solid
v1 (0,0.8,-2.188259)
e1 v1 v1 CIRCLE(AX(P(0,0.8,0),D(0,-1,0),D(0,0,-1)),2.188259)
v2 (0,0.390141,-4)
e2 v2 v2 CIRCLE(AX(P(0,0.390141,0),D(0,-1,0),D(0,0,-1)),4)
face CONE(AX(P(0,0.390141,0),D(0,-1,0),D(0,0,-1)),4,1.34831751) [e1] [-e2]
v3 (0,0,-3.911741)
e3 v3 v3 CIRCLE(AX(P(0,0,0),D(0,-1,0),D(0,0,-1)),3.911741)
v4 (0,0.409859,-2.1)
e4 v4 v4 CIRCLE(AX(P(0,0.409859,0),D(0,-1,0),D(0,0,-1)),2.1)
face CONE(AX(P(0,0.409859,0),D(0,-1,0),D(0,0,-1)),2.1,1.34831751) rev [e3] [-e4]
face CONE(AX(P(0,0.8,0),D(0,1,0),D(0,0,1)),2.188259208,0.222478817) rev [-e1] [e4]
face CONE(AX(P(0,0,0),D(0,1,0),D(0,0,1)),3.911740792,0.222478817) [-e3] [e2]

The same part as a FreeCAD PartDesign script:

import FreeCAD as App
import Part
import Sketcher

V = App.Vector
Q = App.Units.Quantity

doc = App.newDocument("Part")
params = doc.addObject("Spreadsheet::Sheet", "Params")
for row, (alias, value) in enumerate([
    ("sketch1_length", "0.4 mm"),
    ("revolution_angle", "360 deg"),
], start=1):
    params.set(f"A{row}", alias)
    params.set(f"B{row}", "=" + value)
    params.setAlias(f"B{row}", alias)

body = doc.addObject("PartDesign::Body", "Body")

sketch1 = body.newObject("Sketcher::SketchObject", "Sketch")
sketch1.AttachmentSupport = (doc.getObject("XY_Plane"), [""])
sketch1.MapMode = "FlatFace"
sketch1.addGeometry(Part.LineSegment(V(2.1, 0.41, 0), V(3.91, 0, 0)), False)
sketch1.addGeometry(Part.LineSegment(V(3.91, 0, 0), V(4, 0.39, 0)), False)
sketch1.addGeometry(Part.LineSegment(V(4, 0.39, 0), V(2.19, 0.8, 0)), False)
sketch1.addGeometry(Part.LineSegment(V(2.19, 0.8, 0), V(2.1, 0.41, 0)), False)
sketch1.addConstraint(Sketcher.Constraint("Coincident", 0, 2, 1, 1))
sketch1.addConstraint(Sketcher.Constraint("Coincident", 1, 2, 2, 1))
sketch1.addConstraint(Sketcher.Constraint("Coincident", 2, 2, 3, 1))
sketch1.addConstraint(Sketcher.Constraint("Coincident", 3, 2, 0, 1))
sketch1.addConstraint(Sketcher.Constraint("PointOnObject", 0, 2, -1))
sketch1.addConstraint(Sketcher.Constraint("Perpendicular", 0, 1))
sketch1.addConstraint(Sketcher.Constraint("Perpendicular", 1, 2))
sketch1.addConstraint(Sketcher.Constraint("Perpendicular", 2, 3))
sketch1.addConstraint(Sketcher.Constraint("DistanceX", -1, 1, 1, 2, Q("4 mm")))
sketch1.addConstraint(Sketcher.Constraint("Distance", 1, Q("0.4 mm")))
sketch1.addConstraint(Sketcher.Constraint("DistanceY", -1, 1, 2, 2, Q("0.8 mm")))
sketch1.addConstraint(Sketcher.Constraint("DistanceX", -1, 1, 3, 2, Q("2.1 mm")))
sketch1.setExpression("Constraints[9]", "Params.sketch1_length")
revolution = body.newObject("PartDesign::Revolution", "Revolution")
revolution.Profile = sketch1
revolution.ReferenceAxis = (sketch1, ["V_Axis"])
revolution.setExpression("Angle", "Params.revolution_angle")

doc.recompute()
